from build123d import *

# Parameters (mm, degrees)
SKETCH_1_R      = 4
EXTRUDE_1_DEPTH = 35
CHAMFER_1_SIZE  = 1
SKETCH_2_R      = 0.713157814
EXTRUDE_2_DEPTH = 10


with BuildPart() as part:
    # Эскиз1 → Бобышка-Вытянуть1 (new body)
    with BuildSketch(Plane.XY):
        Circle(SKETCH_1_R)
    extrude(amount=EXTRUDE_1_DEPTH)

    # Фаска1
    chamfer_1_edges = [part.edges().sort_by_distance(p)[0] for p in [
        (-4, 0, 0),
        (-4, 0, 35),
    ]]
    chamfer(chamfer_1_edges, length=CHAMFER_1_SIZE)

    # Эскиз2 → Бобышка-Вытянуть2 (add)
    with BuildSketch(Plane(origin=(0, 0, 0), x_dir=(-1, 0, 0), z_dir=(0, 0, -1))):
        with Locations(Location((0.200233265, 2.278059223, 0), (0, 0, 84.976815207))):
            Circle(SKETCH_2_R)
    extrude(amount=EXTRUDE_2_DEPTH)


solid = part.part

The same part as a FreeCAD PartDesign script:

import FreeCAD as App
import Part
import Sketcher
Q = App.Units.Quantity


def edges_at(feature, points):
    """Names of the edges that pass closest to the given points."""
    edges = feature.Shape.Edges
    near = lambda p: min(range(len(edges)), key=lambda i: edges[i].distToShape(Part.Vertex(*p))[0])
    return sorted({f"Edge{near(p) + 1}" for p in points})

doc = App.newDocument("Part")
body = doc.addObject("PartDesign::Body", "Body")

# Sketch on XY plane
sketch1 = doc.addObject("Sketcher::SketchObject", "Sketch")
body.addObject(sketch1)
sketch1.AttachmentSupport = (doc.XY_Plane, [""])
sketch1.MapMode = "FlatFace"
sketch1.addGeometry(Part.Circle(App.Vector(0, 0, 0), App.Vector(0, 0, 1), 4), False)
sketch1.addConstraint([
    Sketcher.Constraint("Coincident", 0, 3, -1, 1),
    Sketcher.Constraint("Diameter", 0, Q("8 mm")),
])
pad1 = doc.addObject("PartDesign::Pad", "Pad")
body.addObject(pad1)
pad1.Profile = sketch1
pad1.Length = 35
doc.recompute()

chamfer = doc.addObject("PartDesign::Chamfer", "Chamfer")
body.addObject(chamfer)
chamfer.Base = (pad1, edges_at(pad1, [(-4, 0, 0), (-4, 0, 35)]))
chamfer.Size = 1

# Sketch on XY plane
sketch2 = doc.addObject("Sketcher::SketchObject", "Sketch001")
body.addObject(sketch2)
sketch2.AttachmentSupport = (doc.XY_Plane, [""])
sketch2.MapMode = "FlatFace"
sketch2.addGeometry(Part.Circle(App.Vector(-0.2, 2.3, 0), App.Vector(0, 0, 1), 0.7), False)
sketch2.addConstraint([
    Sketcher.Constraint("Diameter", 0, Q("1.426316 mm")),
    Sketcher.Constraint("DistanceY", -1, 1, 0, 3, Q("2.278059 mm")),
    Sketcher.Constraint("DistanceX", 0, 3, -1, 1, Q("0.200233 mm")),
])
pad2 = doc.addObject("PartDesign::Pad", "Pad001")
body.addObject(pad2)
pad2.Profile = sketch2
pad2.Length = 10
pad2.Reversed = True

doc.recompute()
